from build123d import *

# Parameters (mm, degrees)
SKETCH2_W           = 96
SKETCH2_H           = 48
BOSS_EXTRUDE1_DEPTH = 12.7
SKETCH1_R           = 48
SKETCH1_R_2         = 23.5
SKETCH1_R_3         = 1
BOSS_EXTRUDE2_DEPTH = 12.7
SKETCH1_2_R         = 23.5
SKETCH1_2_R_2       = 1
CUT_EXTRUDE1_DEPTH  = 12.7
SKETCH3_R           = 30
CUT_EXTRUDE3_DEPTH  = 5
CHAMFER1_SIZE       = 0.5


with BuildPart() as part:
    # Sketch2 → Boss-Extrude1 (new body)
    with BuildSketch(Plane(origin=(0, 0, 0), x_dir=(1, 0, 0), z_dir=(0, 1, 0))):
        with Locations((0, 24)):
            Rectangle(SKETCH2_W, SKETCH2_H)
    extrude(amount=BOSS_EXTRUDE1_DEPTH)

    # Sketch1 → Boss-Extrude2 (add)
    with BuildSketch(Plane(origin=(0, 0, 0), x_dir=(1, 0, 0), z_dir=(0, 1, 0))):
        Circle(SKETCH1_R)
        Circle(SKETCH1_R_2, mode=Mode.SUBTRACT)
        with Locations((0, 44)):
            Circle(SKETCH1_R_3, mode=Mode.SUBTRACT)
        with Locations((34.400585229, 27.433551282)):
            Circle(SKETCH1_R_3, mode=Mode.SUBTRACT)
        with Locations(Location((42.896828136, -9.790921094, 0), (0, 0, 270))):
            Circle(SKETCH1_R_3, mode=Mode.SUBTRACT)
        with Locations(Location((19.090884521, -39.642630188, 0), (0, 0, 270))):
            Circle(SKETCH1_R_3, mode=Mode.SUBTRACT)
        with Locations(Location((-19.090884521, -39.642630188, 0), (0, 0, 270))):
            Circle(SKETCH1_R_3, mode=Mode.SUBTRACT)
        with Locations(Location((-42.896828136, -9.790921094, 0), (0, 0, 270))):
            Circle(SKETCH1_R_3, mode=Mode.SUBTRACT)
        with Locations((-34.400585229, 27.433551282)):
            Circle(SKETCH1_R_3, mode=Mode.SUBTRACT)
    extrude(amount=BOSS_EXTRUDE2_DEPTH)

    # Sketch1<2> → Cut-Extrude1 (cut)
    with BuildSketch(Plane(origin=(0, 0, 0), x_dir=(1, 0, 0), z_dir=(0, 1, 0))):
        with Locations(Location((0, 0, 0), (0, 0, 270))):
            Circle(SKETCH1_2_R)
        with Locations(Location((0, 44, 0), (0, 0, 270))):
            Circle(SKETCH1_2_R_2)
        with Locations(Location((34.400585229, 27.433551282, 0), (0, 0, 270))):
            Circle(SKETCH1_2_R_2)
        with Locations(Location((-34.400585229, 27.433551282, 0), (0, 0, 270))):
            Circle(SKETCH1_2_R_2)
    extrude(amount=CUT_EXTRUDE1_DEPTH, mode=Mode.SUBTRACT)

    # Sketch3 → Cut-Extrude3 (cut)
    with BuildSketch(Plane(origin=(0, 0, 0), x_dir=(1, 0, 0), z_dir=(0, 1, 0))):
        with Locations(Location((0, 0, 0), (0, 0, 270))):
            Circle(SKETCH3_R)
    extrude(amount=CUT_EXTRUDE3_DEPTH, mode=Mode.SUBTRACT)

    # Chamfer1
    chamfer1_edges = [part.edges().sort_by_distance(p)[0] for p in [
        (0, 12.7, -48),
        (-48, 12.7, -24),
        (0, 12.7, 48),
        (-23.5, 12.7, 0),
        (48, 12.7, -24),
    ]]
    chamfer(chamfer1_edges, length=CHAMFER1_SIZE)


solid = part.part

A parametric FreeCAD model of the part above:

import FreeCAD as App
import Part
import Sketcher


def edges_at(feature, points):
    """Names of the edges that pass closest to the given points."""
    edges = feature.Shape.Edges
    near = lambda p: min(range(len(edges)), key=lambda i: edges[i].distToShape(Part.Vertex(*p))[0])
    return sorted({f"Edge{near(p) + 1}" for p in points})

doc = App.newDocument("Part")
body = doc.addObject("PartDesign::Body", "Body")

sketch1 = body.newObject("Sketcher::SketchObject", "Sketch")
sketch1.AttachmentSupport = (doc.getObject("XZ_Plane"), [""])
sketch1.MapMode = "FlatFace"
sketch1.addGeometry([
    Part.LineSegment(App.Vector(-48, -48, 0), App.Vector(-48, 0, 0)),
    Part.LineSegment(App.Vector(-48, 0, 0), App.Vector(48, 0, 0)),
    Part.LineSegment(App.Vector(48, 0, 0), App.Vector(48, -48, 0)),
    Part.LineSegment(App.Vector(48, -48, 0), App.Vector(-48, -48, 0)),
], False)
sketch1.addConstraint([
    Sketcher.Constraint("Coincident", 0, 2, 1, 1),
    Sketcher.Constraint("Coincident", 1, 2, 2, 1),
    Sketcher.Constraint("Coincident", 2, 2, 3, 1),
    Sketcher.Constraint("Coincident", 3, 2, 0, 1),
    Sketcher.Constraint("Vertical", 0),
    Sketcher.Constraint("Horizontal", 1),
    Sketcher.Constraint("Vertical", 2),
    Sketcher.Constraint("Horizontal", 3),
    Sketcher.Constraint("Symmetric", 0, 2, 1, 2, -1, 1),
    Sketcher.Constraint("DistanceX", 1, 1, 1, 2, 96.0),
    Sketcher.Constraint("DistanceY", 0, 1, 0, 2, 48.0),
])
pad1 = body.newObject("PartDesign::Pad", "Pad")
pad1.Profile = sketch1
pad1.Length = 12.7
pad1.Reversed = True

sketch2 = body.newObject("Sketcher::SketchObject", "Sketch001")
sketch2.AttachmentSupport = (doc.getObject("XZ_Plane"), [""])
sketch2.MapMode = "FlatFace"
sketch2.addGeometry([
    Part.Circle(App.Vector(0, 0, 0), App.Vector(0, 0, 1), 48),
    Part.Circle(App.Vector(-19.1, 39.6, 0), App.Vector(0, 0, 1), 1),
    Part.Circle(App.Vector(-42.9, 9.8, 0), App.Vector(0, 0, 1), 1),
    Part.Circle(App.Vector(19.1, 39.6, 0), App.Vector(0, 0, 1), 1),
    Part.Circle(App.Vector(0, 0, 0), App.Vector(0, 0, 1), 23.5),
    Part.Circle(App.Vector(42.9, 9.8, 0), App.Vector(0, 0, 1), 1),
    Part.Circle(App.Vector(-34.4, -27.4, 0), App.Vector(0, 0, 1), 1),
    Part.Circle(App.Vector(0, -44, 0), App.Vector(0, 0, 1), 1),
    Part.Circle(App.Vector(34.4, -27.4, 0), App.Vector(0, 0, 1), 1),
], False)
sketch2.addConstraint([
    Sketcher.Constraint("Coincident", 0, 3, -1, 1),
    Sketcher.Constraint("Coincident", 4, 3, -1, 1),
    Sketcher.Constraint("Equal", 1, 2),
    Sketcher.Constraint("Equal", 2, 3),
    Sketcher.Constraint("Equal", 3, 5),
    Sketcher.Constraint("Equal", 5, 6),
    Sketcher.Constraint("Equal", 6, 7),
    Sketcher.Constraint("Equal", 7, 8),
    Sketcher.Constraint("Symmetric", 1, 3, 3, 3, -2),
    Sketcher.Constraint("Symmetric", 2, 3, 5, 3, -2),
    Sketcher.Constraint("Symmetric", 6, 3, 8, 3, -2),
    Sketcher.Constraint("PointOnObject", 7, 3, -2),
    Sketcher.Constraint("Diameter", 0, 96.0),
    Sketcher.Constraint("Diameter", 1, 2.0),
    Sketcher.Constraint("Diameter", 4, 47.0),
    Sketcher.Constraint("DistanceY", 7, 3, -1, 1, 44.0),
    Sketcher.Constraint("DistanceX", 6, 3, 1, 3, 15.309701),
    Sketcher.Constraint("DistanceY", -1, 1, 1, 3, 39.64263),
    Sketcher.Constraint("DistanceX", 2, 3, -1, 1, 42.896828),
    Sketcher.Constraint("DistanceY", -1, 1, 2, 3, 9.790921),
    Sketcher.Constraint("DistanceY", 6, 3, -1, 1, 27.433551),
    Sketcher.Constraint("DistanceX", 1, 3, 3, 3, 38.181769),
])
pad2 = body.newObject("PartDesign::Pad", "Pad001")
pad2.Profile = sketch2
pad2.Length = 12.7
pad2.Reversed = True

sketch3 = body.newObject("Sketcher::SketchObject", "Sketch002")
sketch3.AttachmentSupport = (doc.getObject("XZ_Plane"), [""])
sketch3.MapMode = "FlatFace"
sketch3.addGeometry([
    Part.Circle(App.Vector(0, 0, 0), App.Vector(0, 0, 1), 23.5),
    Part.Circle(App.Vector(0, -44, 0), App.Vector(0, 0, 1), 1),
    Part.Circle(App.Vector(34.4, -27.4, 0), App.Vector(0, 0, 1), 1),
    Part.Circle(App.Vector(-34.4, -27.4, 0), App.Vector(0, 0, 1), 1),
], False)
sketch3.addConstraint([
    Sketcher.Constraint("Coincident", 0, 3, -1, 1),
    Sketcher.Constraint("Equal", 1, 2),
    Sketcher.Constraint("Equal", 2, 3),
    Sketcher.Constraint("Symmetric", 2, 3, 3, 3, -2),
    Sketcher.Constraint("PointOnObject", 1, 3, -2),
    Sketcher.Constraint("Diameter", 0, 47.0),
    Sketcher.Constraint("Diameter", 1, 2.0),
    Sketcher.Constraint("DistanceY", 1, 3, -1, 1, 44.0),
    Sketcher.Constraint("DistanceY", 2, 3, -1, 1, 27.433551),
    Sketcher.Constraint("DistanceX", 3, 3, 2, 3, 68.80117),
])
pocket1 = body.newObject("PartDesign::Pocket", "Pocket")
pocket1.Profile = sketch3
pocket1.Length = 12.7

sketch4 = body.newObject("Sketcher::SketchObject", "Sketch003")
sketch4.AttachmentSupport = (doc.getObject("XZ_Plane"), [""])
sketch4.MapMode = "FlatFace"
sketch4.addGeometry(Part.Circle(App.Vector(0, 0, 0), App.Vector(0, 0, 1), 30), False)
sketch4.addConstraint([
    Sketcher.Constraint("Coincident", 0, 3, -1, 1),
    Sketcher.Constraint("Diameter", 0, 60.0),
])
pocket2 = body.newObject("PartDesign::Pocket", "Pocket001")
pocket2.Profile = sketch4
pocket2.Length = 5
doc.recompute()

chamfer = body.newObject("PartDesign::Chamfer", "Chamfer")
chamfer.Base = (pocket2, edges_at(pocket2, [
    (0, 12.7, -48),
    (-48, 12.7, -24),
    (0, 12.7, 48),
    (-23.5, 12.7, 0),
    (48, 12.7, -24),
]))
chamfer.Size = 0.5

doc.recompute()
